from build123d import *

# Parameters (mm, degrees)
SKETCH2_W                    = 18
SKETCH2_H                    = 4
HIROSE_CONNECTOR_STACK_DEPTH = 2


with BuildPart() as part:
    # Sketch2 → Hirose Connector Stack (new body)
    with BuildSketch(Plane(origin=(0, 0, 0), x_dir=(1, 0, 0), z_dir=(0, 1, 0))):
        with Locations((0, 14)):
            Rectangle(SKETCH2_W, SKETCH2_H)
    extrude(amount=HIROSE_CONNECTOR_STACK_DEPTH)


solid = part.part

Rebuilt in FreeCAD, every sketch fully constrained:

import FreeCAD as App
import Part
import Sketcher
from FreeCAD import Vector

doc = App.newDocument("Part")
body = doc.addObject("PartDesign::Body", "Body")

# Sketch on XZ plane
sketch1 = body.newObject("Sketcher::SketchObject", "Sketch")
sketch1.AttachmentSupport = (doc.getObject("XZ_Plane"), [""])
sketch1.MapMode = "FlatFace"
sketch1.addGeometry([
    Part.LineSegment(Vector(-9, -16, 0), Vector(-9, -12, 0)),
    Part.LineSegment(Vector(-9, -12, 0), Vector(9, -12, 0)),
    Part.LineSegment(Vector(9, -12, 0), Vector(9, -16, 0)),
    Part.LineSegment(Vector(9, -16, 0), Vector(-9, -16, 0)),
], False)
sketch1.addConstraint([
    Sketcher.Constraint("Coincident", 0, 2, 1, 1),
    Sketcher.Constraint("Coincident", 1, 2, 2, 1),
    Sketcher.Constraint("Coincident", 2, 2, 3, 1),
    Sketcher.Constraint("Coincident", 3, 2, 0, 1),
    Sketcher.Constraint("Vertical", 0),
    Sketcher.Constraint("Horizontal", 1),
    Sketcher.Constraint("Vertical", 2),
    Sketcher.Constraint("Horizontal", 3),
    Sketcher.Constraint("DistanceX", 1, 1, 1, 2, 18.0),
    Sketcher.Constraint("DistanceY", 0, 1, 0, 2, 4.0),
    Sketcher.Constraint("DistanceX", 0, 2, -1, 1, 9.0),
    Sketcher.Constraint("DistanceY", 0, 2, -1, 1, 12.0),
])
pad1 = body.newObject("PartDesign::Pad", "Pad")
pad1.Profile = sketch1
pad1.Length = 2
pad1.Reversed = True

doc.recompute()
